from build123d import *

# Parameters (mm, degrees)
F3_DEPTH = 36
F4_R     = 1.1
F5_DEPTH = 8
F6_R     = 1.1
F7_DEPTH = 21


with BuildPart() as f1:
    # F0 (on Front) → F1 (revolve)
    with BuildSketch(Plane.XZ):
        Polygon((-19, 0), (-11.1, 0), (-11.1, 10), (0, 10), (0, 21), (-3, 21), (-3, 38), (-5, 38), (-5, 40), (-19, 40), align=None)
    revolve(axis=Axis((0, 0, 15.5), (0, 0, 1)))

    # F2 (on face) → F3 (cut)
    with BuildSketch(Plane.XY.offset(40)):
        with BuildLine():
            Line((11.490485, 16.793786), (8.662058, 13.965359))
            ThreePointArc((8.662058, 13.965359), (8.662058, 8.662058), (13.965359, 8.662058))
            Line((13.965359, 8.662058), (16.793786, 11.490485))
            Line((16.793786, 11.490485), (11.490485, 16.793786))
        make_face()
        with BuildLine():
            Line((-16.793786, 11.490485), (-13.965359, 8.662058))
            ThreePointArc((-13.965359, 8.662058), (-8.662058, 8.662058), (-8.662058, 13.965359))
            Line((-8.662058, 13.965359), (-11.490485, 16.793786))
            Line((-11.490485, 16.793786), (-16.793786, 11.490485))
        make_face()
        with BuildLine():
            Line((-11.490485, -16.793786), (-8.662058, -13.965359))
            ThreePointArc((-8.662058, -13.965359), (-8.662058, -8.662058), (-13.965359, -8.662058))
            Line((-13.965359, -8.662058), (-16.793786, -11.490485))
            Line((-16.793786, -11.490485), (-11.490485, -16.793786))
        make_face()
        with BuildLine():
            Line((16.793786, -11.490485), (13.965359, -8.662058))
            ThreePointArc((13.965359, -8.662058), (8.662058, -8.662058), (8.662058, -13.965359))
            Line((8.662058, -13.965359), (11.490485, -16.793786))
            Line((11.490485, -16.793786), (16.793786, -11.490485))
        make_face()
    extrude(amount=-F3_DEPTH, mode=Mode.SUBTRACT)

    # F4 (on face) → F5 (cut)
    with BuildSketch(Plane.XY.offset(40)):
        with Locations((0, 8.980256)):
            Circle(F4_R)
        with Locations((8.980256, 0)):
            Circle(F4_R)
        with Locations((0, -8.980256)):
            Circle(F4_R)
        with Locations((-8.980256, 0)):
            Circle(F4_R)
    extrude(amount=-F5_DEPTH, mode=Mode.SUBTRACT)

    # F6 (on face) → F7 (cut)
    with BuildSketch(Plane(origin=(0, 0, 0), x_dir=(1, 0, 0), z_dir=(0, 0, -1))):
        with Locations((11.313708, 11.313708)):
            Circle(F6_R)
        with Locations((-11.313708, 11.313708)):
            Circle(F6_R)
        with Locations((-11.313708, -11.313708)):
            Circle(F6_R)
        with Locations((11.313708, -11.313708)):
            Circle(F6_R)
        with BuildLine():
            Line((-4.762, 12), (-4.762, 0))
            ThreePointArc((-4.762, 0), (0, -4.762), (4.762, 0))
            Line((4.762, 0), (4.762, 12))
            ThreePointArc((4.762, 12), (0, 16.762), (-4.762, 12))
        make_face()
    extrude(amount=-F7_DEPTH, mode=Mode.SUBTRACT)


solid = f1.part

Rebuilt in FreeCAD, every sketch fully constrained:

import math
import FreeCAD as App
import Part
import Sketcher

V = App.Vector

doc = App.newDocument("Part")
body = doc.addObject("PartDesign::Body", "Body")

sketch1 = doc.addObject("Sketcher::SketchObject", "Sketch")
body.addObject(sketch1)
sketch1.AttachmentSupport = (doc.XZ_Plane, [""])
sketch1.MapMode = "FlatFace"
sketch1.addGeometry(Part.LineSegment(V(-19, 0, 0), V(-11.1, 0, 0)), False)
sketch1.addGeometry(Part.LineSegment(V(-11.1, 0, 0), V(-11.1, 10, 0)), False)
sketch1.addGeometry(Part.LineSegment(V(-11.1, 10, 0), V(0, 10, 0)), False)
sketch1.addGeometry(Part.LineSegment(V(0, 10, 0), V(0, 21, 0)), False)
sketch1.addGeometry(Part.LineSegment(V(0, 21, 0), V(-3, 21, 0)), False)
sketch1.addGeometry(Part.LineSegment(V(-3, 21, 0), V(-3, 38, 0)), False)
sketch1.addGeometry(Part.LineSegment(V(-3, 38, 0), V(-5, 38, 0)), False)
sketch1.addGeometry(Part.LineSegment(V(-5, 38, 0), V(-5, 40, 0)), False)
sketch1.addGeometry(Part.LineSegment(V(-5, 40, 0), V(-19, 40, 0)), False)
sketch1.addGeometry(Part.LineSegment(V(-19, 40, 0), V(-19, 0, 0)), False)
sketch1.addConstraint(Sketcher.Constraint("Coincident", 0, 2, 1, 1))
sketch1.addConstraint(Sketcher.Constraint("Coincident", 1, 2, 2, 1))
sketch1.addConstraint(Sketcher.Constraint("Coincident", 2, 2, 3, 1))
sketch1.addConstraint(Sketcher.Constraint("Coincident", 3, 2, 4, 1))
sketch1.addConstraint(Sketcher.Constraint("Coincident", 4, 2, 5, 1))
sketch1.addConstraint(Sketcher.Constraint("Coincident", 5, 2, 6, 1))
sketch1.addConstraint(Sketcher.Constraint("Coincident", 6, 2, 7, 1))
sketch1.addConstraint(Sketcher.Constraint("Coincident", 7, 2, 8, 1))
sketch1.addConstraint(Sketcher.Constraint("Coincident", 8, 2, 9, 1))
sketch1.addConstraint(Sketcher.Constraint("Coincident", 9, 2, 0, 1))
sketch1.addConstraint(Sketcher.Constraint("Horizontal", 0))
sketch1.addConstraint(Sketcher.Constraint("Vertical", 1))
sketch1.addConstraint(Sketcher.Constraint("Horizontal", 2))
sketch1.addConstraint(Sketcher.Constraint("Vertical", 3))
sketch1.addConstraint(Sketcher.Constraint("Horizontal", 4))
sketch1.addConstraint(Sketcher.Constraint("Vertical", 5))
sketch1.addConstraint(Sketcher.Constraint("Horizontal", 6))
sketch1.addConstraint(Sketcher.Constraint("Vertical", 7))
sketch1.addConstraint(Sketcher.Constraint("Horizontal", 8))
sketch1.addConstraint(Sketcher.Constraint("Vertical", 9))
sketch1.addConstraint(Sketcher.Constraint("PointOnObject", 0, 2, -1))
sketch1.addConstraint(Sketcher.Constraint("PointOnObject", 2, 2, -2))
sketch1.addConstraint(Sketcher.Constraint("Equal", 6, 7))
sketch1.addConstraint(Sketcher.Constraint("DistanceX", 4, 2, 4, 1, 3.0))
sketch1.addConstraint(Sketcher.Constraint("DistanceX", 6, 2, 6, 1, 2.0))
sketch1.addConstraint(Sketcher.Constraint("DistanceX", 8, 2, 8, 1, 14.0))
sketch1.addConstraint(Sketcher.Constraint("DistanceY", 1, 1, 1, 2, 10.0))
sketch1.addConstraint(Sketcher.Constraint("DistanceY", 3, 1, 3, 2, 11.0))
sketch1.addConstraint(Sketcher.Constraint("DistanceY", 5, 1, 5, 2, 17.0))
sketch1.addConstraint(Sketcher.Constraint("DistanceX", 0, 1, 0, 2, 7.9))
revolution = doc.addObject("PartDesign::Revolution", "Revolution")
body.addObject(revolution)
revolution.Profile = sketch1
revolution.ReferenceAxis = (sketch1, ["V_Axis"])
revolution.Angle = 360

sketch2 = doc.addObject("Sketcher::SketchObject", "Sketch001")
body.addObject(sketch2)
sketch2.AttachmentSupport = (doc.XY_Plane, [""])
sketch2.MapMode = "FlatFace"
sketch2.AttachmentOffset = App.Placement(V(0, 0, 40), App.Rotation())
sketch2.addGeometry(Part.LineSegment(V(11.5, 16.8, 0), V(8.7, 14, 0)), False)
sketch2.addGeometry(Part.ArcOfCircle(Part.Circle(V(11.3, 11.3, 0), V(0, 0, 1), 3.8), math.radians(135), math.radians(315)), False)
sketch2.addGeometry(Part.LineSegment(V(14, 8.7, 0), V(16.8, 11.5, 0)), False)
sketch2.addGeometry(Part.LineSegment(V(16.8, 11.5, 0), V(11.5, 16.8, 0)), False)
sketch2.addGeometry(Part.LineSegment(V(-16.8, 11.5, 0), V(-14, 8.7, 0)), False)
sketch2.addGeometry(Part.ArcOfCircle(Part.Circle(V(-11.3, 11.3, 0), V(0, 0, 1), 3.8), math.radians(-135), math.radians(45)), False)
sketch2.addGeometry(Part.LineSegment(V(-8.7, 14, 0), V(-11.5, 16.8, 0)), False)
sketch2.addGeometry(Part.LineSegment(V(-11.5, 16.8, 0), V(-16.8, 11.5, 0)), False)
sketch2.addGeometry(Part.LineSegment(V(-11.5, -16.8, 0), V(-8.7, -14, 0)), False)
sketch2.addGeometry(Part.ArcOfCircle(Part.Circle(V(-11.3, -11.3, 0), V(0, 0, 1), 3.8), math.radians(-45), math.radians(135)), False)
sketch2.addGeometry(Part.LineSegment(V(-14, -8.7, 0), V(-16.8, -11.5, 0)), False)
sketch2.addGeometry(Part.LineSegment(V(-16.8, -11.5, 0), V(-11.5, -16.8, 0)), False)
sketch2.addGeometry(Part.LineSegment(V(16.8, -11.5, 0), V(14, -8.7, 0)), False)
sketch2.addGeometry(Part.ArcOfCircle(Part.Circle(V(11.3, -11.3, 0), V(0, 0, 1), 3.8), math.radians(45), math.radians(225)), False)
sketch2.addGeometry(Part.LineSegment(V(8.7, -14, 0), V(11.5, -16.8, 0)), False)
sketch2.addGeometry(Part.LineSegment(V(11.5, -16.8, 0), V(16.8, -11.5, 0)), False)
sketch2.addConstraint(Sketcher.Constraint("Tangent", 0, 2, 1, 1))
sketch2.addConstraint(Sketcher.Constraint("Tangent", 1, 2, 2, 1))
sketch2.addConstraint(Sketcher.Constraint("Coincident", 2, 2, 3, 1))
sketch2.addConstraint(Sketcher.Constraint("Coincident", 3, 2, 0, 1))
sketch2.addConstraint(Sketcher.Constraint("Tangent", 4, 2, 5, 1))
sketch2.addConstraint(Sketcher.Constraint("Tangent", 5, 2, 6, 1))
sketch2.addConstraint(Sketcher.Constraint("Coincident", 6, 2, 7, 1))
sketch2.addConstraint(Sketcher.Constraint("Coincident", 7, 2, 4, 1))
sketch2.addConstraint(Sketcher.Constraint("Tangent", 8, 2, 9, 1))
sketch2.addConstraint(Sketcher.Constraint("Tangent", 9, 2, 10, 1))
sketch2.addConstraint(Sketcher.Constraint("Coincident", 10, 2, 11, 1))
sketch2.addConstraint(Sketcher.Constraint("Coincident", 11, 2, 8, 1))
sketch2.addConstraint(Sketcher.Constraint("Tangent", 12, 2, 13, 1))
sketch2.addConstraint(Sketcher.Constraint("Tangent", 13, 2, 14, 1))
sketch2.addConstraint(Sketcher.Constraint("Coincident", 14, 2, 15, 1))
sketch2.addConstraint(Sketcher.Constraint("Coincident", 15, 2, 12, 1))
sketch2.addConstraint(Sketcher.Constraint("Equal", 1, 5))
sketch2.addConstraint(Sketcher.Constraint("Equal", 5, 9))
sketch2.addConstraint(Sketcher.Constraint("Equal", 9, 13))
sketch2.addConstraint(Sketcher.Constraint("Symmetric", 1, 3, 9, 3, -1, 1))
sketch2.addConstraint(Sketcher.Constraint("Symmetric", 5, 3, 13, 3, -1, 1))
sketch2.addConstraint(Sketcher.Constraint("Symmetric", 2, 2, 10, 2, -1, 1))
sketch2.addConstraint(Sketcher.Constraint("Symmetric", 3, 2, 11, 2, -1, 1))
sketch2.addConstraint(Sketcher.Constraint("Symmetric", 6, 2, 14, 2, -1, 1))
sketch2.addConstraint(Sketcher.Constraint("Symmetric", 7, 2, 15, 2, -1, 1))
sketch2.addConstraint(Sketcher.Constraint("Symmetric", 1, 3, 5, 3, -2))
sketch2.addConstraint(Sketcher.Constraint("Symmetric", 3, 2, 6, 2, -2))
sketch2.addConstraint(Sketcher.Constraint("Symmetric", 2, 2, 7, 2, -2))
sketch2.addConstraint(Sketcher.Constraint("Parallel", 0, 2))
sketch2.addConstraint(Sketcher.Constraint("Perpendicular", 2, 3))
sketch2.addConstraint(Sketcher.Constraint("Parallel", 3, 4))
sketch2.addConstraint(Sketcher.Constraint("Radius", 1, 3.75))
sketch2.addConstraint(Sketcher.Constraint("Distance", 0, 4.0))
sketch2.addConstraint(Sketcher.Constraint("DistanceX", -1, 1, 1, 3, 11.313709))
sketch2.addConstraint(Sketcher.Constraint("DistanceY", -1, 1, 1, 3, 11.313709))
pocket1 = doc.addObject("PartDesign::Pocket", "Pocket")
body.addObject(pocket1)
pocket1.Profile = sketch2
pocket1.Length = 36

sketch3 = doc.addObject("Sketcher::SketchObject", "Sketch002")
body.addObject(sketch3)
sketch3.AttachmentSupport = (doc.XY_Plane, [""])
sketch3.MapMode = "FlatFace"
sketch3.AttachmentOffset = App.Placement(V(0, 0, 40), App.Rotation())
sketch3.addGeometry(Part.Circle(V(0, 9, 0), V(0, 0, 1), 1.1), False)
sketch3.addGeometry(Part.Circle(V(9, 0, 0), V(0, 0, 1), 1.1), False)
sketch3.addGeometry(Part.Circle(V(0, -9, 0), V(0, 0, 1), 1.1), False)
sketch3.addGeometry(Part.Circle(V(-9, 0, 0), V(0, 0, 1), 1.1), False)
sketch3.addConstraint(Sketcher.Constraint("Equal", 0, 1))
sketch3.addConstraint(Sketcher.Constraint("Equal", 1, 2))
sketch3.addConstraint(Sketcher.Constraint("Equal", 2, 3))
sketch3.addConstraint(Sketcher.Constraint("Symmetric", 0, 3, 2, 3, -1, 1))
sketch3.addConstraint(Sketcher.Constraint("Symmetric", 1, 3, 3, 3, -1, 1))
sketch3.addConstraint(Sketcher.Constraint("PointOnObject", 0, 3, -2))
sketch3.addConstraint(Sketcher.Constraint("PointOnObject", 1, 3, -1))
sketch3.addConstraint(Sketcher.Constraint("Diameter", 0, 2.2))
sketch3.addConstraint(Sketcher.Constraint("DistanceY", -1, 1, 0, 3, 8.980256))
sketch3.addConstraint(Sketcher.Constraint("DistanceX", -1, 1, 1, 3, 8.980256))
pocket2 = doc.addObject("PartDesign::Pocket", "Pocket001")
body.addObject(pocket2)
pocket2.Profile = sketch3
pocket2.Length = 8

sketch4 = doc.addObject("Sketcher::SketchObject", "Sketch003")
body.addObject(sketch4)
sketch4.AttachmentSupport = (doc.XY_Plane, [""])
sketch4.MapMode = "FlatFace"
sketch4.addGeometry(Part.Circle(V(11.3, -11.3, 0), V(0, 0, 1), 1.1), False)
sketch4.addGeometry(Part.Circle(V(-11.3, -11.3, 0), V(0, 0, 1), 1.1), False)
sketch4.addGeometry(Part.Circle(V(-11.3, 11.3, 0), V(0, 0, 1), 1.1), False)
sketch4.addGeometry(Part.Circle(V(11.3, 11.3, 0), V(0, 0, 1), 1.1), False)
sketch4.addGeometry(Part.LineSegment(V(-4.8, -12, 0), V(-4.8, 0, 0)), False)
sketch4.addGeometry(Part.ArcOfCircle(Part.Circle(V(0, 0, 0), V(0, 0, 1), 4.8), math.radians(0), math.radians(180)), False)
sketch4.addGeometry(Part.LineSegment(V(4.8, 0, 0), V(4.8, -12, 0)), False)
sketch4.addGeometry(Part.ArcOfCircle(Part.Circle(V(0, -12, 0), V(0, 0, 1), 4.8), math.radians(180), math.radians(360)), False)
sketch4.addConstraint(Sketcher.Constraint("Tangent", 4, 2, 5, 2))
sketch4.addConstraint(Sketcher.Constraint("Tangent", 5, 1, 6, 1))
sketch4.addConstraint(Sketcher.Constraint("Tangent", 6, 2, 7, 2))
sketch4.addConstraint(Sketcher.Constraint("Tangent", 7, 1, 4, 1))
sketch4.addConstraint(Sketcher.Constraint("Vertical", 4))
sketch4.addConstraint(Sketcher.Constraint("Vertical", 6))
sketch4.addConstraint(Sketcher.Constraint("Coincident", 5, 3, -1, 1))
sketch4.addConstraint(Sketcher.Constraint("Equal", 0, 1))
sketch4.addConstraint(Sketcher.Constraint("Equal", 1, 2))
sketch4.addConstraint(Sketcher.Constraint("Equal", 2, 3))
sketch4.addConstraint(Sketcher.Constraint("Symmetric", 0, 3, 2, 3, -1, 1))
sketch4.addConstraint(Sketcher.Constraint("Symmetric", 1, 3, 3, 3, -1, 1))
sketch4.addConstraint(Sketcher.Constraint("Symmetric", 0, 3, 1, 3, -2))
sketch4.addConstraint(Sketcher.Constraint("Diameter", 0, 2.2))
sketch4.addConstraint(Sketcher.Constraint("DistanceY", 4, 1, 4, 2, 12.0))
sketch4.addConstraint(Sketcher.Constraint("Radius", 5, 4.762))
sketch4.addConstraint(Sketcher.Constraint("DistanceY", 7, 3, 0, 3, 0.686292))
sketch4.addConstraint(Sketcher.Constraint("DistanceX", 1, 3, 4, 2, 6.551708))
pocket3 = doc.addObject("PartDesign::Pocket", "Pocket002")
body.addObject(pocket3)
pocket3.Profile = sketch4
pocket3.Length = 21
pocket3.Reversed = True

doc.recompute()
